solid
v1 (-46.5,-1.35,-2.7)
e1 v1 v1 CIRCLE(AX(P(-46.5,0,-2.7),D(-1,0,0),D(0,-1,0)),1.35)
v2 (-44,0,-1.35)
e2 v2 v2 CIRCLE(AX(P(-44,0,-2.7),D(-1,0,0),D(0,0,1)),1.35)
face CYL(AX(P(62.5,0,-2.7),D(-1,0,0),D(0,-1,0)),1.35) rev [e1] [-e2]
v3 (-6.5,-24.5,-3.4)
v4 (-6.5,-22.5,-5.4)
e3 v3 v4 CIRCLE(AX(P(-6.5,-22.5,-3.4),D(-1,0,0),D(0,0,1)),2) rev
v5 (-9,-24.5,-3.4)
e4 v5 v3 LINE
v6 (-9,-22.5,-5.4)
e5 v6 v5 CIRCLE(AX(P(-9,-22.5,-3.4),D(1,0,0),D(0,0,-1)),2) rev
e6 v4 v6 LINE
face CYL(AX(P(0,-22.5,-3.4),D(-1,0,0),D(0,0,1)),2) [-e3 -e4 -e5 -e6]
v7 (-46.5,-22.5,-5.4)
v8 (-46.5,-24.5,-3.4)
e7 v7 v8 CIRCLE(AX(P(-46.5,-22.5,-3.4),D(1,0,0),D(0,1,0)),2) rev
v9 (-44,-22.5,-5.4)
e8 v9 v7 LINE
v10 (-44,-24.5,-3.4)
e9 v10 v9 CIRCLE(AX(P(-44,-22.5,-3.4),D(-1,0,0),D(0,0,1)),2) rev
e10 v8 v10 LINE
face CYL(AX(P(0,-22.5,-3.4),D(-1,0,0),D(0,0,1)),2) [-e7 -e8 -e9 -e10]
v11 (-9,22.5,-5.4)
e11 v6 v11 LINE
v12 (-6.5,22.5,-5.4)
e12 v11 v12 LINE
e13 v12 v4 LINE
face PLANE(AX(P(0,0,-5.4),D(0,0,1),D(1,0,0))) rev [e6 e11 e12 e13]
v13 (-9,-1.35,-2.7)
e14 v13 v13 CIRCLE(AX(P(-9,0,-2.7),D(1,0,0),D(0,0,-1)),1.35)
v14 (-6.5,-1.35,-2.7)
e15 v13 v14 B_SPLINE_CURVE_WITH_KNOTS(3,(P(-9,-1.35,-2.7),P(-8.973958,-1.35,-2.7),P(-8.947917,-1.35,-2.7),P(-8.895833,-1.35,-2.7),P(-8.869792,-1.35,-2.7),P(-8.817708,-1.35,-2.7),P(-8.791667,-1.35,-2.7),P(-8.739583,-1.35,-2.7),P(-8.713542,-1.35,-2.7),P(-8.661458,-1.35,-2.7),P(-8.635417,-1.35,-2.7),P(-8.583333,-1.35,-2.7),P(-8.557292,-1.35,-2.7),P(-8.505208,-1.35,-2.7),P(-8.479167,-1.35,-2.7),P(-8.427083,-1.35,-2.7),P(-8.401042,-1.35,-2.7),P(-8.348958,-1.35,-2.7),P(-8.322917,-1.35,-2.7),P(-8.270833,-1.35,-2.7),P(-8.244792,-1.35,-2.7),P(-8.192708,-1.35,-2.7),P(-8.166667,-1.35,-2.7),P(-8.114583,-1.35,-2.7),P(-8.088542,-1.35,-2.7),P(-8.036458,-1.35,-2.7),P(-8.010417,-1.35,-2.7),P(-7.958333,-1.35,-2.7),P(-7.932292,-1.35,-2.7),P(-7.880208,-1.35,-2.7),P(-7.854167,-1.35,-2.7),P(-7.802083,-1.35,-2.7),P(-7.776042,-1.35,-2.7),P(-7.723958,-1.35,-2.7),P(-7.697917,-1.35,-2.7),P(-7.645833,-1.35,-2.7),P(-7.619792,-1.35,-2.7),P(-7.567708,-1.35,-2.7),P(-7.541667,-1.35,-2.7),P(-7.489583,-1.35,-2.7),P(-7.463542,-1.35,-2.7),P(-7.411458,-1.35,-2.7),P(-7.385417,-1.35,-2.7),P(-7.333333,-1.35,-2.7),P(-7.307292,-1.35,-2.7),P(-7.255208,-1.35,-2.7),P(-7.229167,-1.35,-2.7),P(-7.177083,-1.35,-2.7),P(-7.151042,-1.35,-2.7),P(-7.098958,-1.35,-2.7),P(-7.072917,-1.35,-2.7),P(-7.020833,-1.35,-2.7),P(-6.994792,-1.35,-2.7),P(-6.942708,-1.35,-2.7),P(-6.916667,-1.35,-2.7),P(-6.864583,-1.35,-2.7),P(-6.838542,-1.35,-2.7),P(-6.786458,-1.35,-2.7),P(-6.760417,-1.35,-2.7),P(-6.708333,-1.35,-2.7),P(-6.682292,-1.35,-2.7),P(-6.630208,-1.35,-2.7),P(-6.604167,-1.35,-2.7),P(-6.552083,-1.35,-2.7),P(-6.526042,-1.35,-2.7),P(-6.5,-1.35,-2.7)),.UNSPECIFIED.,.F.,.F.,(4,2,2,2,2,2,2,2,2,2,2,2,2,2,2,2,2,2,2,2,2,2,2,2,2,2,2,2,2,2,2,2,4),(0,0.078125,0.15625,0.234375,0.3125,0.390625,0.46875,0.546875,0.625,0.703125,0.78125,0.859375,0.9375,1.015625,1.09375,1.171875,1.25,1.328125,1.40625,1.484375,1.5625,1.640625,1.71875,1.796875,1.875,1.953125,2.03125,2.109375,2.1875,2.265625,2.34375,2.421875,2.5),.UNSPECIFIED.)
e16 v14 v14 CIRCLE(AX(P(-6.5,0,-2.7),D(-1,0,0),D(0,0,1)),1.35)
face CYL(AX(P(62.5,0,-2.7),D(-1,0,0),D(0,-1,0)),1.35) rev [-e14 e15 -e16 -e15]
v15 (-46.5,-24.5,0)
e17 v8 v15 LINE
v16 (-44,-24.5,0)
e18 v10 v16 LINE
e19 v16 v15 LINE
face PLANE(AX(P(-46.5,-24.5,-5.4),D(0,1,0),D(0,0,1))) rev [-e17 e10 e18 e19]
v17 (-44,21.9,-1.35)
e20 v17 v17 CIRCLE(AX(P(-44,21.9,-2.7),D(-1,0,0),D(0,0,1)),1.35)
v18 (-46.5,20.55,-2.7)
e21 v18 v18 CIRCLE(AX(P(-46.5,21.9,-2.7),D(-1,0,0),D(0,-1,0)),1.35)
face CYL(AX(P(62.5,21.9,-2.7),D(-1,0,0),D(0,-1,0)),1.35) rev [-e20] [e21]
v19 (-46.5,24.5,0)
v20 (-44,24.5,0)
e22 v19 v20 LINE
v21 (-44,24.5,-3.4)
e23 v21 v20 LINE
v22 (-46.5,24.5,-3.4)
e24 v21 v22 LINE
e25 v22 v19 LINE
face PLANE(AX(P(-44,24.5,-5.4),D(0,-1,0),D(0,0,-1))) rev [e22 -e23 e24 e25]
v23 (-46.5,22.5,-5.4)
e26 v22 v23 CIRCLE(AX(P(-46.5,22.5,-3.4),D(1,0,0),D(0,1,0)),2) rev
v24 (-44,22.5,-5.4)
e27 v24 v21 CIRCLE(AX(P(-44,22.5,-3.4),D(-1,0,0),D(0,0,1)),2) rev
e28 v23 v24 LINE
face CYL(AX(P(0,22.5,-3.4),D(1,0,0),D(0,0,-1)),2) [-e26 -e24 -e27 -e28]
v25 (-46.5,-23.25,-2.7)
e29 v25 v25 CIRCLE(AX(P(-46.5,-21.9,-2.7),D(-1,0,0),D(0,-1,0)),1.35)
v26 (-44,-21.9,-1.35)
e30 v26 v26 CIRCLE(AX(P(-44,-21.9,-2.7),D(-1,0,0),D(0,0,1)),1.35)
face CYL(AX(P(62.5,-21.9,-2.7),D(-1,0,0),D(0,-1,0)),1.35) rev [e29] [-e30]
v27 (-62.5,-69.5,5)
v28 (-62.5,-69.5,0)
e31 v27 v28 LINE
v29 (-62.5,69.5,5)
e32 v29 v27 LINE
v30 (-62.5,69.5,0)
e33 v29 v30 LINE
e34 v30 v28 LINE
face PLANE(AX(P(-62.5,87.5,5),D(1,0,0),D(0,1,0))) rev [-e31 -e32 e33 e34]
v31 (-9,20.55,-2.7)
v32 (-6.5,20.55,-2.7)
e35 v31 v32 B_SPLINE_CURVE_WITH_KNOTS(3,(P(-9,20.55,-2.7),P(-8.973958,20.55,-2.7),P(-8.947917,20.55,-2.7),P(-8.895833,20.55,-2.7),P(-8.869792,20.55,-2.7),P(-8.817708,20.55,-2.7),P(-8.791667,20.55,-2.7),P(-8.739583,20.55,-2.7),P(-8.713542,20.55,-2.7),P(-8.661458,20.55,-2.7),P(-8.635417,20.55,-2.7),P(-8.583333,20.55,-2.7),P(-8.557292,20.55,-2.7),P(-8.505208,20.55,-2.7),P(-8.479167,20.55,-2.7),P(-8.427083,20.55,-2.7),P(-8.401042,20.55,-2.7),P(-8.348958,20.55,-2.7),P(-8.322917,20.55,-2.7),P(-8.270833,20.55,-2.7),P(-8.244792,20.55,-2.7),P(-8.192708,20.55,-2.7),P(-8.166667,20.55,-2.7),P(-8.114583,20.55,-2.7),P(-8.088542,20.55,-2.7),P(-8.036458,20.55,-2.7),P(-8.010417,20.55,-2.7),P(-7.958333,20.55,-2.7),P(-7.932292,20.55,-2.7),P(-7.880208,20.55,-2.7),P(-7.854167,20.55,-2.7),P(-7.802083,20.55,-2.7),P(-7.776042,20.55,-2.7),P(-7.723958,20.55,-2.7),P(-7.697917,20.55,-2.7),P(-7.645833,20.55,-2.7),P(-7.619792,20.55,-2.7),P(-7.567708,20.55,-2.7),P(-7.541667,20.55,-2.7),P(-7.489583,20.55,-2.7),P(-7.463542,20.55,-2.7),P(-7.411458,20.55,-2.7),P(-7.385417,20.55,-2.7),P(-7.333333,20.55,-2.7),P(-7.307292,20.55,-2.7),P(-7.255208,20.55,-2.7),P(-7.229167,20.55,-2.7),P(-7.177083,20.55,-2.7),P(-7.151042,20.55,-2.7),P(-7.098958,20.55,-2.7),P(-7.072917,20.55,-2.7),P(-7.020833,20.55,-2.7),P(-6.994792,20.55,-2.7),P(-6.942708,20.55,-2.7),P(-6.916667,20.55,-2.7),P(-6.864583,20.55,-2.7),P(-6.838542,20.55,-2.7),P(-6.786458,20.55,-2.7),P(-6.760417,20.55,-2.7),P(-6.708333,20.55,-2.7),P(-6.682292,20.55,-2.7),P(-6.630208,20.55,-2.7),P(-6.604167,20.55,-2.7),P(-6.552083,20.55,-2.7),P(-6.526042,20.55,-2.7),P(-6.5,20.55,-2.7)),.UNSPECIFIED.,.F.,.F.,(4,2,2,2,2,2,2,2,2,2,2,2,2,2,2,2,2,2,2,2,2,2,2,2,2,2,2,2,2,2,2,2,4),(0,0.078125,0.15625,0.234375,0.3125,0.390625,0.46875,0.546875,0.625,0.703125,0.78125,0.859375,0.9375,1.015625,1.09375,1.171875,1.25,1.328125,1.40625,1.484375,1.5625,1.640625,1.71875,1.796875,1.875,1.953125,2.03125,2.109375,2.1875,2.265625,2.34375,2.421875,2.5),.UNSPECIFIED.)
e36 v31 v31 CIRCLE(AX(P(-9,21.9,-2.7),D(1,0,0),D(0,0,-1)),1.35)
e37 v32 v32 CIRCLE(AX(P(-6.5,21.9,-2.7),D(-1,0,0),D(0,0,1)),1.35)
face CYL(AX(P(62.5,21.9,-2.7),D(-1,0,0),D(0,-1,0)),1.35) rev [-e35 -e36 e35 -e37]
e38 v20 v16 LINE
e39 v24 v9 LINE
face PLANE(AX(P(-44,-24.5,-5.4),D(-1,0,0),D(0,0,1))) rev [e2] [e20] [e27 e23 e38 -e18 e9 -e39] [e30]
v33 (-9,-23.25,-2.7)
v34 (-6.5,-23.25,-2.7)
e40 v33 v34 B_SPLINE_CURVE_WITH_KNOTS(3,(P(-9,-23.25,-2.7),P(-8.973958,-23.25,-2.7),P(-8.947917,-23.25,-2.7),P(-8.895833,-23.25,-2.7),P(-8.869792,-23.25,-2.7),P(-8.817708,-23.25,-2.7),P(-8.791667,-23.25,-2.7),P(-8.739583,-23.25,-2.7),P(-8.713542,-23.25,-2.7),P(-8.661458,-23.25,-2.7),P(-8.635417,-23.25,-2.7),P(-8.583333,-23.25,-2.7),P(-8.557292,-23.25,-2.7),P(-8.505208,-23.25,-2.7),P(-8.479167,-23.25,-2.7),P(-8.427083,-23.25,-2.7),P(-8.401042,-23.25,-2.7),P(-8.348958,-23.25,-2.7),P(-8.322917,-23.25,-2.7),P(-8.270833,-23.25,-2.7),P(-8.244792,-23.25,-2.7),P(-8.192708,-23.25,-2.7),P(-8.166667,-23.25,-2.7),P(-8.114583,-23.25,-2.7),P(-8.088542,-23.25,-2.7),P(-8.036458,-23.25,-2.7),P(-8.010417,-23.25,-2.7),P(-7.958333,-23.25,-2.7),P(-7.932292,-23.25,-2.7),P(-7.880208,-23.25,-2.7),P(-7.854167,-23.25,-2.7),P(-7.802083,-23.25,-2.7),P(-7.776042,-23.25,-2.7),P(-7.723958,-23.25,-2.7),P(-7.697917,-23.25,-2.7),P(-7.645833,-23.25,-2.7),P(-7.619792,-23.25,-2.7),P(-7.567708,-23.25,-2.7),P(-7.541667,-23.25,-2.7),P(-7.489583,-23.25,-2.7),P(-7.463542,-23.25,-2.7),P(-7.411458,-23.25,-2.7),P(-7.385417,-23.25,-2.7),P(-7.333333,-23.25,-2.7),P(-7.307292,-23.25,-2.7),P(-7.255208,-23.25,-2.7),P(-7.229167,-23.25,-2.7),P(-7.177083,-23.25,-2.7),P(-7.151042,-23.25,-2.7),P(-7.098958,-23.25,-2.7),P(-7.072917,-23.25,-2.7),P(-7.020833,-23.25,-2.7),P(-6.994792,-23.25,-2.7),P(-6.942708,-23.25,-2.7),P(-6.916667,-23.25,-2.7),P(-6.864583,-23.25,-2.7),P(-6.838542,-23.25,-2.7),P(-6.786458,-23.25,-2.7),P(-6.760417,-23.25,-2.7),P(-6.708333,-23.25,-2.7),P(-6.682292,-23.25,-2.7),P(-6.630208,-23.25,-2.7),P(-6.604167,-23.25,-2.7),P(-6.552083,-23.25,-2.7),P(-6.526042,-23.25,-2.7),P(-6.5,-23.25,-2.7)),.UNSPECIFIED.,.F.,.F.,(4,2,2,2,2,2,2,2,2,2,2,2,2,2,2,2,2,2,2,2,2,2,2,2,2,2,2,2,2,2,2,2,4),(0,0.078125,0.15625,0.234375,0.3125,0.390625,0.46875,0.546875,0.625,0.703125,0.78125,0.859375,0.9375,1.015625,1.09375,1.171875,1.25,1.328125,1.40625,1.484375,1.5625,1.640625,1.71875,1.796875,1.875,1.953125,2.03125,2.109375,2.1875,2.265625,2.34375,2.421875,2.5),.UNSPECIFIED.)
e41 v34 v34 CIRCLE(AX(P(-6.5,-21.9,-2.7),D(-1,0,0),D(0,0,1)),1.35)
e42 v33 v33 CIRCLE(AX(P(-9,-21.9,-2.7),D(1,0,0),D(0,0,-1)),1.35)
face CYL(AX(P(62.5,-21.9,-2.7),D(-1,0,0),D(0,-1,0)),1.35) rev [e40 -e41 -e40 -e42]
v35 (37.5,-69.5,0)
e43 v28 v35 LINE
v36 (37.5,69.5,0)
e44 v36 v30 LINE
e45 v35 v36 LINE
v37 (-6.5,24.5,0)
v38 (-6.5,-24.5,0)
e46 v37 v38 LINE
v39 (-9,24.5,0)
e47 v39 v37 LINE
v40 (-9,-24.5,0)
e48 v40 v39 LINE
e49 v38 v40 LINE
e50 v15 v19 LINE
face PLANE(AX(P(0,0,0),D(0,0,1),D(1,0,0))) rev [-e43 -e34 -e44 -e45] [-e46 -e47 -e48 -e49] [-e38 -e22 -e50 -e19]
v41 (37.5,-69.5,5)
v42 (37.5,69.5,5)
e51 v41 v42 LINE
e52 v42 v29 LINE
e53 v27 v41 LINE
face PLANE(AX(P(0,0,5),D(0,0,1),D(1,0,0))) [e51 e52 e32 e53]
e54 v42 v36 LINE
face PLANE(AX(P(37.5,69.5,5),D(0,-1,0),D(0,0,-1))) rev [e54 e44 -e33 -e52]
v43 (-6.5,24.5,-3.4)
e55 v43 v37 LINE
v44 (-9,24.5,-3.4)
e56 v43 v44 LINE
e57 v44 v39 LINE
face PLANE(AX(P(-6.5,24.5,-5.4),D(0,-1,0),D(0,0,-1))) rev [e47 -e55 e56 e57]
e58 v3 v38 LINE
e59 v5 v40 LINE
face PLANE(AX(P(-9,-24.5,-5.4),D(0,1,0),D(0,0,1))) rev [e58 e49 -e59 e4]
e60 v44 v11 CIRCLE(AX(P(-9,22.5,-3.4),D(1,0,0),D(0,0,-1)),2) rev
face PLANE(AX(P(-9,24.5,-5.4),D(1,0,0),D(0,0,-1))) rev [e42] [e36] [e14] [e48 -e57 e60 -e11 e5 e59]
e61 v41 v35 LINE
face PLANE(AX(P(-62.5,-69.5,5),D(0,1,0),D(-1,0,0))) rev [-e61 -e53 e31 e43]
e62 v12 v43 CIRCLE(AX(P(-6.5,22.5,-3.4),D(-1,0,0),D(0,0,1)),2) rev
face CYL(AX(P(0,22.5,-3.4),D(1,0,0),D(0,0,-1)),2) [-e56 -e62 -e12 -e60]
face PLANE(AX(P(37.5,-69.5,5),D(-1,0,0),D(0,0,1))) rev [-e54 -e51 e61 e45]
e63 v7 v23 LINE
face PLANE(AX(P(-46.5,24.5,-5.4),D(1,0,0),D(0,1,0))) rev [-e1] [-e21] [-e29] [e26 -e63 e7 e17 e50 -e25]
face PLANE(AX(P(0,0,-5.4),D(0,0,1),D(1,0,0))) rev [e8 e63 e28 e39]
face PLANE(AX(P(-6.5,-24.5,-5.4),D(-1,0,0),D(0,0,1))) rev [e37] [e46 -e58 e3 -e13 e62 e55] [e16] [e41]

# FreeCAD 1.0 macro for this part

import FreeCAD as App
import Part
import Sketcher

V = App.Vector


def edges_at(feature, points):
    """Names of the edges that pass closest to the given points."""
    edges = feature.Shape.Edges
    near = lambda p: min(range(len(edges)), key=lambda i: edges[i].distToShape(Part.Vertex(*p))[0])
    return sorted({f"Edge{near(p) + 1}" for p in points})


def add_polygon(sketch, points):
    """Adds a closed chain of lines whose ends are joined by coincident constraints."""
    first, n = sketch.GeometryCount, len(points)
    for a, b in zip(points, points[1:] + points[:1]):
        sketch.addGeometry(Part.LineSegment(App.Vector(*a, 0), App.Vector(*b, 0)), False)
    for i in range(n):
        sketch.addConstraint(Sketcher.Constraint("Coincident", first + i, 2, first + (i + 1) % n, 1))

doc = App.newDocument("Part")
body = doc.addObject("PartDesign::Body", "Body")

# Sketch on XY plane
sketch1 = body.newObject("Sketcher::SketchObject", "Sketch")
sketch1.AttachmentSupport = (doc.getObject("XY_Plane"), [""])
sketch1.MapMode = "FlatFace"
add_polygon(sketch1, [(-62.5, 87.5), (-62.5, -87.5), (62.5, -87.5), (62.5, 87.5)])  # lines 0-3
sketch1.addConstraint(Sketcher.Constraint("Vertical", 0))
sketch1.addConstraint(Sketcher.Constraint("Horizontal", 1))
sketch1.addConstraint(Sketcher.Constraint("Vertical", 2))
sketch1.addConstraint(Sketcher.Constraint("Horizontal", 3))
sketch1.addConstraint(Sketcher.Constraint("Symmetric", 0, 2, 2, 2, -1, 1))
sketch1.addConstraint(Sketcher.Constraint("DistanceX", 1, 1, 1, 2, 125.0))
sketch1.addConstraint(Sketcher.Constraint("DistanceY", 0, 2, 0, 1, 175.0))
pad1 = body.newObject("PartDesign::Pad", "Pad")
pad1.Profile = sketch1
pad1.Length = 5

# Sketch on XY plane
sketch2 = body.newObject("Sketcher::SketchObject", "Sketch001")
sketch2.AttachmentSupport = (doc.getObject("XY_Plane"), [""])
sketch2.MapMode = "FlatFace"
add_polygon(sketch2, [(-6.5, 24.5), (-6.5, -24.5), (-9, -24.5), (-9, 24.5)])  # lines 0-3
add_polygon(sketch2, [(-44, 24.5), (-44, -24.5), (-46.5, -24.5), (-46.5, 24.5)])  # lines 4-7
sketch2.addConstraint(Sketcher.Constraint("Vertical", 0))
sketch2.addConstraint(Sketcher.Constraint("Horizontal", 1))
sketch2.addConstraint(Sketcher.Constraint("Vertical", 2))
sketch2.addConstraint(Sketcher.Constraint("Horizontal", 3))
sketch2.addConstraint(Sketcher.Constraint("Vertical", 4))
sketch2.addConstraint(Sketcher.Constraint("Horizontal", 5))
sketch2.addConstraint(Sketcher.Constraint("Vertical", 6))
sketch2.addConstraint(Sketcher.Constraint("Horizontal", 7))
sketch2.addConstraint(Sketcher.Constraint("Horizontal", 1, 2, 4, 2))
sketch2.addConstraint(Sketcher.Constraint("Horizontal", 3, 2, 6, 2))
sketch2.addConstraint(Sketcher.Constraint("Equal", 3, 5))
sketch2.addConstraint(Sketcher.Constraint("DistanceY", 0, 2, 0, 1, 49.0))
sketch2.addConstraint(Sketcher.Constraint("DistanceX", 1, 2, 1, 1, 2.5))
sketch2.addConstraint(Sketcher.Constraint("DistanceX", 1, 2, -1, 1, 9.0))
sketch2.addConstraint(Sketcher.Constraint("DistanceX", 4, 2, -1, 1, 44.0))
sketch2.addConstraint(Sketcher.Constraint("DistanceY", 0, 2, -1, 1, 24.5))
pad2 = body.newObject("PartDesign::Pad", "Pad001")
pad2.Profile = sketch2
pad2.Length = 5.4
pad2.Reversed = True
doc.recompute()

fillet = body.newObject("PartDesign::Fillet", "Fillet")
fillet.Base = (pad2, edges_at(pad2, [
    (-7.75, 24.5, -5.4),
    (-7.75, -24.5, -5.4),
    (-45.25, 24.5, -5.4),
    (-45.25, -24.5, -5.4),
]))
fillet.Radius = 2

# Sketch on YZ plane
sketch3 = body.newObject("Sketcher::SketchObject", "Sketch002")
sketch3.AttachmentSupport = (doc.getObject("YZ_Plane"), [""])
sketch3.MapMode = "FlatFace"
sketch3.AttachmentOffset = App.Placement(V(0, 0, -46.5), App.Rotation())
sketch3.addGeometry(Part.Circle(V(-21.9, -2.7, 0), V(0, 0, 1), 1.35), False)
sketch3.addGeometry(Part.Circle(V(21.9, -2.7, 0), V(0, 0, 1), 1.35), False)
sketch3.addGeometry(Part.Circle(V(0, -2.7, 0), V(0, 0, 1), 1.35), False)
sketch3.addConstraint(Sketcher.Constraint("Equal", 0, 1))
sketch3.addConstraint(Sketcher.Constraint("Equal", 1, 2))
sketch3.addConstraint(Sketcher.Constraint("Symmetric", 0, 3, 1, 3, -2))
sketch3.addConstraint(Sketcher.Constraint("PointOnObject", 2, 3, -2))
sketch3.addConstraint(Sketcher.Constraint("Horizontal", 1, 3, 2, 3))
sketch3.addConstraint(Sketcher.Constraint("Diameter", 0, 2.7))
sketch3.addConstraint(Sketcher.Constraint("DistanceX", 0, 3, -1, 1, 21.9))
sketch3.addConstraint(Sketcher.Constraint("DistanceY", 0, 3, -1, 1, 2.7))
pocket1 = body.newObject("PartDesign::Pocket", "Pocket")
pocket1.Profile = sketch3
pocket1.Type = "ThroughAll"
pocket1.Reversed = True

# Sketch on XY plane
sketch4 = body.newObject("Sketcher::SketchObject", "Sketch003")
sketch4.AttachmentSupport = (doc.getObject("XY_Plane"), [""])
sketch4.MapMode = "FlatFace"
add_polygon(sketch4, [(-62.5, -87.5), (-62.5, -69.5), (37.5, -69.5), (37.5, 69.5), (-62.5, 69.5), (-62.5, 87.5), (62.5, 87.5), (62.5, -87.5)])  # lines 0-7
sketch4.addConstraint(Sketcher.Constraint("Vertical", 0))
sketch4.addConstraint(Sketcher.Constraint("Horizontal", 1))
sketch4.addConstraint(Sketcher.Constraint("Vertical", 2))
sketch4.addConstraint(Sketcher.Constraint("Horizontal", 3))
sketch4.addConstraint(Sketcher.Constraint("Vertical", 4))
sketch4.addConstraint(Sketcher.Constraint("Horizontal", 5))
sketch4.addConstraint(Sketcher.Constraint("Vertical", 6))
sketch4.addConstraint(Sketcher.Constraint("Horizontal", 7))
sketch4.addConstraint(Sketcher.Constraint("Symmetric", 4, 2, 6, 2, -1, 1))
sketch4.addConstraint(Sketcher.Constraint("Symmetric", 0, 2, 3, 2, -1))
sketch4.addConstraint(Sketcher.Constraint("DistanceX", 1, 1, 1, 2, 100.0))
sketch4.addConstraint(Sketcher.Constraint("DistanceX", 5, 1, 5, 2, 125.0))
sketch4.addConstraint(Sketcher.Constraint("DistanceY", 0, 1, 0, 2, 18.0))
sketch4.addConstraint(Sketcher.Constraint("DistanceY", 2, 1, 2, 2, 139.0))
pocket2 = body.newObject("PartDesign::Pocket", "Pocket001")
pocket2.Profile = sketch4
pocket2.Type = "ThroughAll"
pocket2.Reversed = True

doc.recompute()
